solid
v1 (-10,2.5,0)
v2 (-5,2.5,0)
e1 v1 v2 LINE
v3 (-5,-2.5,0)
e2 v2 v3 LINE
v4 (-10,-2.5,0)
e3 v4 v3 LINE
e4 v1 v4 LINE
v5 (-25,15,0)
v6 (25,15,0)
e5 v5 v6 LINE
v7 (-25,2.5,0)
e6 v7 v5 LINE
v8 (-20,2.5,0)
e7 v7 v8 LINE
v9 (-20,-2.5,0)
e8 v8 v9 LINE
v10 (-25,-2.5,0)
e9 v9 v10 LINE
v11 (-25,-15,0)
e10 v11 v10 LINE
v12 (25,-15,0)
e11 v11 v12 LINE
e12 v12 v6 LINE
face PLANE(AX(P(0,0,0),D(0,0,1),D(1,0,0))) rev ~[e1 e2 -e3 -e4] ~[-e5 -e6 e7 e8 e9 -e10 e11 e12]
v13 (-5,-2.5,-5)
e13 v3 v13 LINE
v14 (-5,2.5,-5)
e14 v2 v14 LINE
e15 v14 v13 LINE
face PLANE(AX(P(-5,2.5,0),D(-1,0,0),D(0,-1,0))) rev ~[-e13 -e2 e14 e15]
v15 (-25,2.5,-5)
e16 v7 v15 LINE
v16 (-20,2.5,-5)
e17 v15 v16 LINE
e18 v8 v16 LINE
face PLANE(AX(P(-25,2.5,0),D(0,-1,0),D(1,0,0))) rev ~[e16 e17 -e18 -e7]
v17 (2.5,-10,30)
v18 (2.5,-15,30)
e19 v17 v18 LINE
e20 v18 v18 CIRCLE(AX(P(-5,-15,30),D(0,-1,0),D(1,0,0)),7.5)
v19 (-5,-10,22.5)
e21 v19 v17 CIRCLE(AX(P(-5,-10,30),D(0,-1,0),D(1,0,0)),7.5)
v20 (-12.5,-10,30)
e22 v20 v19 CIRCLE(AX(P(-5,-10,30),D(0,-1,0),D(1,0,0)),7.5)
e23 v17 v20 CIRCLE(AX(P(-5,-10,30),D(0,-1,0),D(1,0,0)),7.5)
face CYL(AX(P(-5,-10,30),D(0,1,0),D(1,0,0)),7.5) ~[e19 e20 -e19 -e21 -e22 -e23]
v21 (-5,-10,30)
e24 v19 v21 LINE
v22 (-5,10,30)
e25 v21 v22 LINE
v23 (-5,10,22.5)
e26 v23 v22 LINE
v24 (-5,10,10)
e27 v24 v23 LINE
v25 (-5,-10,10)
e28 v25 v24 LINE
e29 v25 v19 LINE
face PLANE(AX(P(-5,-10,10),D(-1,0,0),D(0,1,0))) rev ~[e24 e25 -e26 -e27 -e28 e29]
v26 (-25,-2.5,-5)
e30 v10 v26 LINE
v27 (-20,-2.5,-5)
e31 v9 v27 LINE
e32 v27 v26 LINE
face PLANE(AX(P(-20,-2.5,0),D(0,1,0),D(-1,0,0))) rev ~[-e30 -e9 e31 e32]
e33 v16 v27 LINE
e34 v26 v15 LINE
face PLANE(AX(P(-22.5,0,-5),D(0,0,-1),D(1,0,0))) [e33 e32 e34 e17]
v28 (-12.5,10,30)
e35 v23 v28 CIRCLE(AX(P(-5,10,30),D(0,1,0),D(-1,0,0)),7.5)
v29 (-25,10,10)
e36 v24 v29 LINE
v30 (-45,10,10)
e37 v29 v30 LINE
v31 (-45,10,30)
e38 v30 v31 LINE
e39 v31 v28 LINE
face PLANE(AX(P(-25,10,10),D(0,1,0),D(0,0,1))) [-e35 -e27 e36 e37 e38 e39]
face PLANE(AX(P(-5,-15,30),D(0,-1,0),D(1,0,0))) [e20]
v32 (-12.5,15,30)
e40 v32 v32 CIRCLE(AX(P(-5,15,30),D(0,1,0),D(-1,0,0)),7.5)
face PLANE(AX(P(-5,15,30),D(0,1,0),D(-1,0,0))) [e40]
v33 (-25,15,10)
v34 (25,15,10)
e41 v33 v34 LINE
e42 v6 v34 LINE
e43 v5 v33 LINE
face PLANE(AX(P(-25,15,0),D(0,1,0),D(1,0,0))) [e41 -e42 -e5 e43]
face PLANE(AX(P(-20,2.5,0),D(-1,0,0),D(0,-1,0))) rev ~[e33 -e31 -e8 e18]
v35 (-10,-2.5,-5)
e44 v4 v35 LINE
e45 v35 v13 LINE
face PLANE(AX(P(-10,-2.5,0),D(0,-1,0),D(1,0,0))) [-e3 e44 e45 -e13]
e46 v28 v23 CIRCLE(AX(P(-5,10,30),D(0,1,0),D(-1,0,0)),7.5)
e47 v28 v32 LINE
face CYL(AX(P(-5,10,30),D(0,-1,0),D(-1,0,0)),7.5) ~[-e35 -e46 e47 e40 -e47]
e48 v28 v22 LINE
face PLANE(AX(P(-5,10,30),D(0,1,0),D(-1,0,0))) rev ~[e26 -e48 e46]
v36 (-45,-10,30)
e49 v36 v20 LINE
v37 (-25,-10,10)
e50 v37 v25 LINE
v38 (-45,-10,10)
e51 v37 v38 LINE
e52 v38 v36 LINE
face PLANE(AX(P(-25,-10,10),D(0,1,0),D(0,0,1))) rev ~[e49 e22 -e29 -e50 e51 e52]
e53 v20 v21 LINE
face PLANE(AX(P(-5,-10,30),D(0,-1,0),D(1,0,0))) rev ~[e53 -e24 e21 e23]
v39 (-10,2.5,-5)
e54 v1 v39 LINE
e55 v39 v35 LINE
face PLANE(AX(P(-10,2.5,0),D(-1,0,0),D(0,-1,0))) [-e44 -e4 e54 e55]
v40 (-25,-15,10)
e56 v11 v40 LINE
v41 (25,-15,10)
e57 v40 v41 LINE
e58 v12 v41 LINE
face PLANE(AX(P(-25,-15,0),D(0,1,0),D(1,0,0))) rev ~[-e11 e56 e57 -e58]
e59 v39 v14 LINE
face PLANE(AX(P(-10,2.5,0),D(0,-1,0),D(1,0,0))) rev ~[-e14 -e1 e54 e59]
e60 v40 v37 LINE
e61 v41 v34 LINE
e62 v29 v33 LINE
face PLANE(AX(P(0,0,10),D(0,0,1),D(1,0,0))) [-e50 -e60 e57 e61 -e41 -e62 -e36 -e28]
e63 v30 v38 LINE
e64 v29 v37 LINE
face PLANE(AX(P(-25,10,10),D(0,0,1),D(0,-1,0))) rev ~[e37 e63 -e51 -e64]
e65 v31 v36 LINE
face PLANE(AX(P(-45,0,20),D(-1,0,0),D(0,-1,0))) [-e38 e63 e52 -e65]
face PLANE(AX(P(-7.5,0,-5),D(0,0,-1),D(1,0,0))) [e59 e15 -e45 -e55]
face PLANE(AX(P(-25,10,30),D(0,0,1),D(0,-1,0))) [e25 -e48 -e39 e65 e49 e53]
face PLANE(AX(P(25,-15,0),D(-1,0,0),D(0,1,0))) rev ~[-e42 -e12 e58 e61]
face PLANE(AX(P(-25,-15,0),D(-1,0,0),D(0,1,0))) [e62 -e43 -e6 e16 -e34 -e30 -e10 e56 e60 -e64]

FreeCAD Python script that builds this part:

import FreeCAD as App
import Part
import Sketcher

V = App.Vector


def add_polygon(sketch, points):
    """Adds a closed chain of lines whose ends are joined by coincident constraints."""
    first, n = sketch.GeometryCount, len(points)
    for a, b in zip(points, points[1:] + points[:1]):
        sketch.addGeometry(Part.LineSegment(App.Vector(*a, 0), App.Vector(*b, 0)), False)
    for i in range(n):
        sketch.addConstraint(Sketcher.Constraint("Coincident", first + i, 2, first + (i + 1) % n, 1))

doc = App.newDocument("Part")
body = doc.addObject("PartDesign::Body", "Body")

# Sketch on XY plane
sketch1 = body.newObject("Sketcher::SketchObject", "Sketch")
sketch1.AttachmentSupport = (doc.getObject("XY_Plane"), [""])
sketch1.MapMode = "FlatFace"
add_polygon(sketch1, [(-25, 15), (-25, -15), (25, -15), (25, 15)])  # lines 0-3
sketch1.addConstraint(Sketcher.Constraint("Vertical", 0))
sketch1.addConstraint(Sketcher.Constraint("Horizontal", 1))
sketch1.addConstraint(Sketcher.Constraint("Vertical", 2))
sketch1.addConstraint(Sketcher.Constraint("Horizontal", 3))
sketch1.addConstraint(Sketcher.Constraint("Symmetric", 0, 2, 2, 2, -1, 1))
sketch1.addConstraint(Sketcher.Constraint("DistanceX", 1, 1, 1, 2, 50.0))
sketch1.addConstraint(Sketcher.Constraint("DistanceY", 0, 2, 0, 1, 30.0))
pad1 = body.newObject("PartDesign::Pad", "Pad")
pad1.Profile = sketch1
pad1.Length = 10

# Sketch on XY plane
sketch2 = body.newObject("Sketcher::SketchObject", "Sketch001")
sketch2.AttachmentSupport = (doc.getObject("XY_Plane"), [""])
sketch2.MapMode = "FlatFace"
add_polygon(sketch2, [(-25, -2), (-25, 2), (-20, 2), (-20, -2)])  # lines 0-3
add_polygon(sketch2, [(-10, -2), (-10, 2), (-5, 2), (-5, -2)])  # lines 4-7
sketch2.addConstraint(Sketcher.Constraint("Vertical", 0))
sketch2.addConstraint(Sketcher.Constraint("Horizontal", 1))
sketch2.addConstraint(Sketcher.Constraint("Vertical", 2))
sketch2.addConstraint(Sketcher.Constraint("Horizontal", 3))
sketch2.addConstraint(Sketcher.Constraint("Vertical", 4))
sketch2.addConstraint(Sketcher.Constraint("Horizontal", 5))
sketch2.addConstraint(Sketcher.Constraint("Vertical", 6))
sketch2.addConstraint(Sketcher.Constraint("Horizontal", 7))
sketch2.addConstraint(Sketcher.Constraint("Horizontal", 1, 2, 4, 2))
sketch2.addConstraint(Sketcher.Constraint("Horizontal", 3, 2, 6, 2))
sketch2.addConstraint(Sketcher.Constraint("Equal", 3, 5))
sketch2.addConstraint(Sketcher.Constraint("Equal", 7, 0))
sketch2.addConstraint(Sketcher.Constraint("DistanceX", 1, 1, 1, 2, 5.0))
sketch2.addConstraint(Sketcher.Constraint("DistanceX", 0, 2, -1, 1, 25.0))
sketch2.addConstraint(Sketcher.Constraint("DistanceX", 4, 2, -1, 1, 10.0))
sketch2.addConstraint(Sketcher.Constraint("DistanceY", -1, 1, 0, 2, 2.5))
pad2 = body.newObject("PartDesign::Pad", "Pad001")
pad2.Profile = sketch2
pad2.Length = 5
pad2.Reversed = True

# Sketch on XY plane
sketch3 = body.newObject("Sketcher::SketchObject", "Sketch002")
sketch3.AttachmentSupport = (doc.getObject("XY_Plane"), [""])
sketch3.MapMode = "FlatFace"
sketch3.AttachmentOffset = App.Placement(V(0, 0, 10), App.Rotation())
add_polygon(sketch3, [(-5, 10), (-25, 10), (-25, -10), (-5, -10)])  # lines 0-3
sketch3.addConstraint(Sketcher.Constraint("Horizontal", 0))
sketch3.addConstraint(Sketcher.Constraint("Vertical", 1))
sketch3.addConstraint(Sketcher.Constraint("Horizontal", 2))
sketch3.addConstraint(Sketcher.Constraint("Vertical", 3))
sketch3.addConstraint(Sketcher.Constraint("Equal", 2, 1))
sketch3.addConstraint(Sketcher.Constraint("DistanceX", 0, 2, 0, 1, 20.0))
sketch3.addConstraint(Sketcher.Constraint("DistanceX", 0, 2, -1, 1, 25.0))
sketch3.addConstraint(Sketcher.Constraint("DistanceY", -1, 1, 0, 2, 10.0))
pad3 = body.newObject("PartDesign::Pad", "Pad002")
pad3.Profile = sketch3
pad3.Length = 20

# Sketch on YZ plane
sketch4 = body.newObject("Sketcher::SketchObject", "Sketch003")
sketch4.AttachmentSupport = (doc.getObject("YZ_Plane"), [""])
sketch4.MapMode = "FlatFace"
sketch4.AttachmentOffset = App.Placement(V(0, 0, -25), App.Rotation())
add_polygon(sketch4, [(10, 30), (10, 10), (-10, 10), (-10, 30)])  # lines 0-3
sketch4.addConstraint(Sketcher.Constraint("Vertical", 0))
sketch4.addConstraint(Sketcher.Constraint("Horizontal", 1))
sketch4.addConstraint(Sketcher.Constraint("Vertical", 2))
sketch4.addConstraint(Sketcher.Constraint("Horizontal", 3))
sketch4.addConstraint(Sketcher.Constraint("Equal", 3, 0))
sketch4.addConstraint(Sketcher.Constraint("DistanceX", 1, 2, 1, 1, 20.0))
sketch4.addConstraint(Sketcher.Constraint("DistanceX", -1, 1, 0, 2, 10.0))
sketch4.addConstraint(Sketcher.Constraint("DistanceY", -1, 1, 0, 2, 10.0))
pad4 = body.newObject("PartDesign::Pad", "Pad003")
pad4.Profile = sketch4
pad4.Length = 20
pad4.Reversed = True

# Sketch on XZ plane
sketch5 = body.newObject("Sketcher::SketchObject", "Sketch004")
sketch5.AttachmentSupport = (doc.getObject("XZ_Plane"), [""])
sketch5.MapMode = "FlatFace"
sketch5.AttachmentOffset = App.Placement(V(0, 0, 10), App.Rotation())
sketch5.addGeometry(Part.Circle(V(-5, 30, 0), V(0, 0, 1), 8), False)
sketch5.addConstraint(Sketcher.Constraint("Diameter", 0, 15.0))
sketch5.addConstraint(Sketcher.Constraint("DistanceX", 0, 3, -1, 1, 5.0))
sketch5.addConstraint(Sketcher.Constraint("DistanceY", -1, 1, 0, 3, 30.0))
pad5 = body.newObject("PartDesign::Pad", "Pad004")
pad5.Profile = sketch5
pad5.Length = 5

# Sketch on XZ plane
sketch6 = body.newObject("Sketcher::SketchObject", "Sketch005")
sketch6.AttachmentSupport = (doc.getObject("XZ_Plane"), [""])
sketch6.MapMode = "FlatFace"
sketch6.AttachmentOffset = App.Placement(V(0, 0, -10), App.Rotation())
sketch6.addGeometry(Part.Circle(V(-5, 30, 0), V(0, 0, 1), 8), False)
sketch6.addConstraint(Sketcher.Constraint("Diameter", 0, 15.0))
sketch6.addConstraint(Sketcher.Constraint("DistanceX", 0, 3, -1, 1, 5.0))
sketch6.addConstraint(Sketcher.Constraint("DistanceY", -1, 1, 0, 3, 30.0))
pad6 = body.newObject("PartDesign::Pad", "Pad005")
pad6.Profile = sketch6
pad6.Length = 5
pad6.Reversed = True

doc.recompute()
